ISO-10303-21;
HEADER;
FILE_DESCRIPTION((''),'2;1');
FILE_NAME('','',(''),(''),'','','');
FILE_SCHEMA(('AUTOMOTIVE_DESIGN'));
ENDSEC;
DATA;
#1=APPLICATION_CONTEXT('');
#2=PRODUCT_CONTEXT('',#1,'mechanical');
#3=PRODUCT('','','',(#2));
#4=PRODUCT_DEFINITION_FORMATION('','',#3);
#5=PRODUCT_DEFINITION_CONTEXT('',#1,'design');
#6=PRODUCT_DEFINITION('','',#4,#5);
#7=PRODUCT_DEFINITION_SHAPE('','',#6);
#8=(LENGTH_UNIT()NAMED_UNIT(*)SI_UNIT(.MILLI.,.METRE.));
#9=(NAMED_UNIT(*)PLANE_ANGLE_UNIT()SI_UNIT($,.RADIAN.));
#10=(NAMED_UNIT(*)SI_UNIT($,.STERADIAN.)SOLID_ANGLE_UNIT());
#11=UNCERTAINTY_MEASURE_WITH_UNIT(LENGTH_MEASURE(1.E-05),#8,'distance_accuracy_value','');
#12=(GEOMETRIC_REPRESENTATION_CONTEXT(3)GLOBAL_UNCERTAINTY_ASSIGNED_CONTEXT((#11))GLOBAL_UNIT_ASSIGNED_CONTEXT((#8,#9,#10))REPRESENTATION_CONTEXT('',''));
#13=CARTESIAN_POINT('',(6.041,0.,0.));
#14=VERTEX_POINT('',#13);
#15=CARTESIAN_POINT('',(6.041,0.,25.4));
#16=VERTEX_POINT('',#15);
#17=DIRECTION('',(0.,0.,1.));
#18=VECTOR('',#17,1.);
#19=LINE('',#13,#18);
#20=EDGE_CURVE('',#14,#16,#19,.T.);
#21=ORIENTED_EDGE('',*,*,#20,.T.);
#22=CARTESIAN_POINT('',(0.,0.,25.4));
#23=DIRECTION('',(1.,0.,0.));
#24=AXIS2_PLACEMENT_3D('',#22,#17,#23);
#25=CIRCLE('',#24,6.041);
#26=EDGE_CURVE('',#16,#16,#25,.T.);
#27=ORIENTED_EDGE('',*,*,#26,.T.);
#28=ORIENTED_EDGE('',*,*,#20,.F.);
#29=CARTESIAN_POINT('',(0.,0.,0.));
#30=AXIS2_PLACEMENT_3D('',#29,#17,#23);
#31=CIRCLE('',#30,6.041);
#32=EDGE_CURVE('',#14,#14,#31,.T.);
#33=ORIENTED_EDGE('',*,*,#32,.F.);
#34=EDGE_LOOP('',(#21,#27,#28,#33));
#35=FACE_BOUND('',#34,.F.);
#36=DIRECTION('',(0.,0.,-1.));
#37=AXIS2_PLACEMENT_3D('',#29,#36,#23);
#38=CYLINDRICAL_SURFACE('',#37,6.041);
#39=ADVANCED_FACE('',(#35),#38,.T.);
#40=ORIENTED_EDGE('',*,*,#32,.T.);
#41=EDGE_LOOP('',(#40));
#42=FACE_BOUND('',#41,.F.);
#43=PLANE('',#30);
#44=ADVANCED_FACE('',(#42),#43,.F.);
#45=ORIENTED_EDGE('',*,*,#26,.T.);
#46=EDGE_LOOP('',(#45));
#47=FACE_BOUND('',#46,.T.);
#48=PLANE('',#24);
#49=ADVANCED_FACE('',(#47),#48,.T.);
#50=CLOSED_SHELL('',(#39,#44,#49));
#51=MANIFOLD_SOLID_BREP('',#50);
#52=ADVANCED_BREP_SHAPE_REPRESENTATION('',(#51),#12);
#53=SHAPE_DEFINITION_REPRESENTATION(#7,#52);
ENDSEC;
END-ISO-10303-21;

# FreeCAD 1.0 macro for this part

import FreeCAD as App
import Part
import Sketcher
from FreeCAD import Vector

doc = App.newDocument("Part")
params = doc.addObject("Spreadsheet::Sheet", "Params")
for row, (alias, value) in enumerate([
    ("pad1_length", "1 in"),
], start=1):
    params.set(f"A{row}", alias)
    params.set(f"B{row}", "=" + value)
    params.setAlias(f"B{row}", alias)

body = doc.addObject("PartDesign::Body", "Body")

sketch1 = body.newObject("Sketcher::SketchObject", "Sketch")
sketch1.AttachmentSupport = (doc.getObject("XY_Plane"), [""])
sketch1.MapMode = "FlatFace"
sketch1.addGeometry(Part.Circle(Vector(0, 0, 0), Vector(0, 0, 1), 6), False)
sketch1.addConstraint([
    Sketcher.Constraint("Coincident", 0, 3, -1, 1),
    Sketcher.Constraint("Diameter", 0, 12.082),
])
pad1 = body.newObject("PartDesign::Pad", "Pad")
pad1.Profile = sketch1
pad1.setExpression("Length", "Params.pad1_length")

doc.recompute()
